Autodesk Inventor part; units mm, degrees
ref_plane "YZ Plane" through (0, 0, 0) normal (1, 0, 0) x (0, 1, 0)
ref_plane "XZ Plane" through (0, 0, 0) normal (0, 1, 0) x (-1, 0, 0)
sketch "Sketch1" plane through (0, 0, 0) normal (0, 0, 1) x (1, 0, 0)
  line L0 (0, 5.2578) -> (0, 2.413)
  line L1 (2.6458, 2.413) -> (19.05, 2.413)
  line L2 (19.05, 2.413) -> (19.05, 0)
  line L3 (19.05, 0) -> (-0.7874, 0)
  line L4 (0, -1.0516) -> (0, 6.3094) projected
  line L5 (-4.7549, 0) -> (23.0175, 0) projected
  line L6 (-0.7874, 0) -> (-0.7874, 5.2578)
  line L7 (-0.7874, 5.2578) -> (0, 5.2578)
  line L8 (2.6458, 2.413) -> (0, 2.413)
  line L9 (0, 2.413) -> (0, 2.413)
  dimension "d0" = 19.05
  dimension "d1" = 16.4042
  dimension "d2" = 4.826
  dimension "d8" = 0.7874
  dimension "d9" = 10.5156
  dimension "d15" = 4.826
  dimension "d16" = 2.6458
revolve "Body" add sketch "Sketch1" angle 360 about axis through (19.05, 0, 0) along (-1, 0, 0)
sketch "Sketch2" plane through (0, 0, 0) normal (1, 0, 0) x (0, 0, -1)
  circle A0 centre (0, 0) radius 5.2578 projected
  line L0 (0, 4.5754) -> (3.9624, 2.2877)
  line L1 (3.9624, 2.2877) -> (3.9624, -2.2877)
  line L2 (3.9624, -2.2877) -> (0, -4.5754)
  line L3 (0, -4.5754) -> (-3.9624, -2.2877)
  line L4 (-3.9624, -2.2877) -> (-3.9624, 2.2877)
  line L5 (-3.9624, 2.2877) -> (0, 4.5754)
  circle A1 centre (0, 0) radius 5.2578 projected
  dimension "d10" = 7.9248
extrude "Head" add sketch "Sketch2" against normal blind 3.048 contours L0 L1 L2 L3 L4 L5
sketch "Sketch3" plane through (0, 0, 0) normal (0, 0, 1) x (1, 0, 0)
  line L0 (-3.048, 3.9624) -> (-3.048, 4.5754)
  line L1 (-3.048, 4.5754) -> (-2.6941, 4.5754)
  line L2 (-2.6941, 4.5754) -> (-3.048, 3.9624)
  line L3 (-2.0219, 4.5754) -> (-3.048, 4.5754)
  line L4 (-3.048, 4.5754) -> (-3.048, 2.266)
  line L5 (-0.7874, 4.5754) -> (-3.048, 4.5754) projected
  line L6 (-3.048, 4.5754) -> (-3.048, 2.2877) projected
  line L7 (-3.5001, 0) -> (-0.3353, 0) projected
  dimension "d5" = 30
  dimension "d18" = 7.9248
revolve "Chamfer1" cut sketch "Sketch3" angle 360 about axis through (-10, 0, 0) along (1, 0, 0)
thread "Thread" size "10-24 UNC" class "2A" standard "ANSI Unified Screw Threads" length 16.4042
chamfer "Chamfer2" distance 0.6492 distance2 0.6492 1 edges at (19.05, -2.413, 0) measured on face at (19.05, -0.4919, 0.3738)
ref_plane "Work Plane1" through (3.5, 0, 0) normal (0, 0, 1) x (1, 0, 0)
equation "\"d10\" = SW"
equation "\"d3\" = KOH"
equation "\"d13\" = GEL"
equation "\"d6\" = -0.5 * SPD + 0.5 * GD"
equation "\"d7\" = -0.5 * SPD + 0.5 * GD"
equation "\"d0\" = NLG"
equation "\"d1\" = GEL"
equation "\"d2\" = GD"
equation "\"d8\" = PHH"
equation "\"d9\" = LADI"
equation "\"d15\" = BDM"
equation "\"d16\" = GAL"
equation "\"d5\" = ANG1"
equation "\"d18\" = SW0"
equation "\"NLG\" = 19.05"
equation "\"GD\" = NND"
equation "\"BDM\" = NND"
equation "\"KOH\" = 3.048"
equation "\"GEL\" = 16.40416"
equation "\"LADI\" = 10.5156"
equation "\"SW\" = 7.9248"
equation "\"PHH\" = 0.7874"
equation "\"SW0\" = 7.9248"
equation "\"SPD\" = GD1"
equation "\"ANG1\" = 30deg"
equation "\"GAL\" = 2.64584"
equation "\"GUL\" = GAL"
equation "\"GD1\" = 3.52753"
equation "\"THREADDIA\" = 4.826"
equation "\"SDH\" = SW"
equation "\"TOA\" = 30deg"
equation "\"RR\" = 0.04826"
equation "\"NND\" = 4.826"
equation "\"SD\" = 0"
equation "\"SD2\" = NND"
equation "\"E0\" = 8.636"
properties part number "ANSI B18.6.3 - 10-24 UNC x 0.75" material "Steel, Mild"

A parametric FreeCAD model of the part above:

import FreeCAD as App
import Part
import Sketcher
Q = App.Units.Quantity


def edges_at(feature, points):
    """Names of the edges that pass closest to the given points."""
    edges = feature.Shape.Edges
    near = lambda p: min(range(len(edges)), key=lambda i: edges[i].distToShape(Part.Vertex(*p))[0])
    return sorted({f"Edge{near(p) + 1}" for p in points})

doc = App.newDocument("Part")
body = doc.addObject("PartDesign::Body", "Body")

sketch1 = doc.addObject("Sketcher::SketchObject", "Sketch")
body.addObject(sketch1)
sketch1.AttachmentSupport = (doc.XY_Plane, [""])
sketch1.MapMode = "FlatFace"
sketch1.addGeometry([
    Part.LineSegment(App.Vector(0, 2.4, 0), App.Vector(0, 5.3, 0)),
    Part.LineSegment(App.Vector(0, 5.3, 0), App.Vector(-0.8, 5.3, 0)),
    Part.LineSegment(App.Vector(-0.8, 5.3, 0), App.Vector(-0.8, 0, 0)),
    Part.LineSegment(App.Vector(-0.8, 0, 0), App.Vector(19.1, 0, 0)),
    Part.LineSegment(App.Vector(19.1, 0, 0), App.Vector(19.1, 2.4, 0)),
    Part.LineSegment(App.Vector(19.1, 2.4, 0), App.Vector(0, 2.4, 0)),
], False)
sketch1.addConstraint([
    Sketcher.Constraint("Coincident", 0, 2, 1, 1),
    Sketcher.Constraint("Coincident", 1, 2, 2, 1),
    Sketcher.Constraint("Coincident", 2, 2, 3, 1),
    Sketcher.Constraint("Coincident", 3, 2, 4, 1),
    Sketcher.Constraint("Coincident", 4, 2, 5, 1),
    Sketcher.Constraint("Coincident", 5, 2, 0, 1),
    Sketcher.Constraint("Vertical", 0),
    Sketcher.Constraint("Horizontal", 1),
    Sketcher.Constraint("Vertical", 2),
    Sketcher.Constraint("Horizontal", 3),
    Sketcher.Constraint("Vertical", 4),
    Sketcher.Constraint("Horizontal", 5),
    Sketcher.Constraint("PointOnObject", 0, 2, -2),
    Sketcher.Constraint("PointOnObject", 2, 2, -1),
    Sketcher.Constraint("DistanceX", 5, 2, 5, 1, Q("0.75 in")),
    Sketcher.Constraint("DistanceX", 1, 2, 1, 1, Q("0.031 in")),
    Sketcher.Constraint("DistanceY", 0, 1, 0, 2, Q("0.112 in")),
    Sketcher.Constraint("DistanceY", 2, 2, 2, 1, Q("0.207 in")),
])
revolution = doc.addObject("PartDesign::Revolution", "Revolution")
body.addObject(revolution)
revolution.Profile = sketch1
revolution.ReferenceAxis = (sketch1, ["H_Axis"])
revolution.Angle = 360

sketch2 = doc.addObject("Sketcher::SketchObject", "Sketch001")
body.addObject(sketch2)
sketch2.AttachmentSupport = (doc.YZ_Plane, [""])
sketch2.MapMode = "FlatFace"
sketch2.addGeometry([
    Part.LineSegment(App.Vector(2.3, -4, 0), App.Vector(4.6, 0, 0)),
    Part.LineSegment(App.Vector(4.6, 0, 0), App.Vector(2.3, 4, 0)),
    Part.LineSegment(App.Vector(2.3, 4, 0), App.Vector(-2.3, 4, 0)),
    Part.LineSegment(App.Vector(-2.3, 4, 0), App.Vector(-4.6, 0, 0)),
    Part.LineSegment(App.Vector(-4.6, 0, 0), App.Vector(-2.3, -4, 0)),
    Part.LineSegment(App.Vector(-2.3, -4, 0), App.Vector(2.3, -4, 0)),
], False)
sketch2.addConstraint([
    Sketcher.Constraint("Coincident", 0, 2, 1, 1),
    Sketcher.Constraint("Coincident", 1, 2, 2, 1),
    Sketcher.Constraint("Coincident", 2, 2, 3, 1),
    Sketcher.Constraint("Coincident", 3, 2, 4, 1),
    Sketcher.Constraint("Coincident", 4, 2, 5, 1),
    Sketcher.Constraint("Coincident", 5, 2, 0, 1),
    Sketcher.Constraint("Horizontal", 2),
    Sketcher.Constraint("Horizontal", 5),
    Sketcher.Constraint("Symmetric", 0, 2, 3, 2, -1, 1),
    Sketcher.Constraint("Symmetric", 1, 2, 4, 2, -1, 1),
    Sketcher.Constraint("PointOnObject", 0, 2, -1),
    Sketcher.Constraint("Parallel", 0, 3),
    Sketcher.Constraint("Vertical", 2, 2, 4, 2),
    Sketcher.Constraint("Angle", 0, Q("60 deg")),
    Sketcher.Constraint("DistanceY", 4, 2, 2, 2, Q("0.312 in")),
    Sketcher.Constraint("DistanceX", 2, 2, 2, 1, Q("4.5754 mm")),
])
pad1 = doc.addObject("PartDesign::Pad", "Pad")
body.addObject(pad1)
pad1.Profile = sketch2
pad1.Length = Q("0.12 in")
pad1.Reversed = True

sketch3 = doc.addObject("Sketcher::SketchObject", "Sketch002")
body.addObject(sketch3)
sketch3.AttachmentSupport = (doc.XY_Plane, [""])
sketch3.MapMode = "FlatFace"
sketch3.addGeometry([
    Part.LineSegment(App.Vector(-3.05, 4.58, 0), App.Vector(-3.05, 3.96, 0)),
    Part.LineSegment(App.Vector(-3.05, 3.96, 0), App.Vector(-2.69, 4.58, 0)),
    Part.LineSegment(App.Vector(-2.69, 4.58, 0), App.Vector(-3.05, 4.58, 0)),
], False)
sketch3.addConstraint([
    Sketcher.Constraint("Coincident", 0, 2, 1, 1),
    Sketcher.Constraint("Coincident", 1, 2, 2, 1),
    Sketcher.Constraint("Coincident", 2, 2, 0, 1),
    Sketcher.Constraint("Vertical", 0),
    Sketcher.Constraint("Horizontal", 2),
    Sketcher.Constraint("Angle", 1, Q("60.001 deg")),
    Sketcher.Constraint("DistanceX", 0, 2, -1, 1, Q("0.12 in")),
    Sketcher.Constraint("DistanceY", -1, 1, 0, 2, Q("0.156 in")),
    Sketcher.Constraint("DistanceX", 2, 2, 2, 1, Q("0.354 mm")),
])
groove = doc.addObject("PartDesign::Groove", "Groove")
body.addObject(groove)
groove.Profile = sketch3
groove.ReferenceAxis = (sketch3, ["H_Axis"])
groove.Angle = 360
doc.recompute()

chamfer = doc.addObject("PartDesign::Chamfer", "Chamfer")
body.addObject(chamfer)
chamfer.Base = (groove, edges_at(groove, [(19.05, -2.413, 0)]))
chamfer.ChamferType = "Two distances"
chamfer.Size = 0.6492
chamfer.Size2 = 0.6492

doc.recompute()
